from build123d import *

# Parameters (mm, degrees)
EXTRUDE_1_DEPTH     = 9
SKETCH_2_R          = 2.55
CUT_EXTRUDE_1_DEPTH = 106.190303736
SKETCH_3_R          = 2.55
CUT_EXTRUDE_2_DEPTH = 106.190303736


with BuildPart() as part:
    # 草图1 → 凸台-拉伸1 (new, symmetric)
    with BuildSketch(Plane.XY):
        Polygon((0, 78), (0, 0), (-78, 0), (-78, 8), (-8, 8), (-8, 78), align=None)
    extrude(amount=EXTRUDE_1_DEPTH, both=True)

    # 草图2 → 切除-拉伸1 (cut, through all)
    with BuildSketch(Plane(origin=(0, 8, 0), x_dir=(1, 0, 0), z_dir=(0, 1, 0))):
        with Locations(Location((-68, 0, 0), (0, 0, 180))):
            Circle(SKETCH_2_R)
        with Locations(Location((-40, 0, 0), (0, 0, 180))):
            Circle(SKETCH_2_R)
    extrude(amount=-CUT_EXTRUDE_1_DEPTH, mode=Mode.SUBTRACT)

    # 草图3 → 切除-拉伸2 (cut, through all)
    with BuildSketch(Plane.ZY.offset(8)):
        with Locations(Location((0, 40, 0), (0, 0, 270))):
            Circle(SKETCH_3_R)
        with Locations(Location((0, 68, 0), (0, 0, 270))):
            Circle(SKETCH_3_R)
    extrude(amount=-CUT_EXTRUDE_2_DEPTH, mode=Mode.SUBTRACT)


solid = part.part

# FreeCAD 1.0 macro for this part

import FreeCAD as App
import Part
import Sketcher
from FreeCAD import Vector
Q = App.Units.Quantity


def add_polygon(sketch, points):
    """Adds a closed chain of lines whose ends are joined by coincident constraints."""
    first, n = sketch.GeometryCount, len(points)
    for a, b in zip(points, points[1:] + points[:1]):
        sketch.addGeometry(Part.LineSegment(App.Vector(*a, 0), App.Vector(*b, 0)), False)
    for i in range(n):
        sketch.addConstraint(Sketcher.Constraint("Coincident", first + i, 2, first + (i + 1) % n, 1))

doc = App.newDocument("Part")
params = doc.addObject("Spreadsheet::Sheet", "Params")
for row, (alias, value) in enumerate([
    ("sketch1_width", "8 mm"),
    ("sketch1_width2", "70 mm"),
    ("pad1_length", "18 mm"),
    ("sketch2_diameter", "5.1 mm"),
    ("sketch3_diameter", "5.1 mm"),
], start=1):
    params.set(f"A{row}", alias)
    params.set(f"B{row}", "=" + value)
    params.setAlias(f"B{row}", alias)

body = doc.addObject("PartDesign::Body", "Body")

# Sketch on XY plane
sketch1 = body.newObject("Sketcher::SketchObject", "Sketch")
sketch1.AttachmentSupport = (doc.getObject("XY_Plane"), [""])
sketch1.MapMode = "FlatFace"
add_polygon(sketch1, [(0, 0), (0, 78), (-8, 78), (-8, 8), (-78, 8), (-78, 0)])  # lines 0-5
sketch1.addConstraint(Sketcher.Constraint("Vertical", 0))
sketch1.addConstraint(Sketcher.Constraint("Horizontal", 1))
sketch1.addConstraint(Sketcher.Constraint("Vertical", 2))
sketch1.addConstraint(Sketcher.Constraint("Horizontal", 3))
sketch1.addConstraint(Sketcher.Constraint("Vertical", 4))
sketch1.addConstraint(Sketcher.Constraint("Horizontal", 5))
sketch1.addConstraint(Sketcher.Constraint("Coincident", 5, 2, -1, 1))
sketch1.addConstraint(Sketcher.Constraint("Equal", 5, 0))
sketch1.addConstraint(Sketcher.Constraint("Equal", 3, 2))
sketch1.addConstraint(Sketcher.Constraint("DistanceX", 1, 2, 1, 1, Q("8 mm")))
sketch1.addConstraint(Sketcher.Constraint("DistanceX", 3, 2, 3, 1, Q("70 mm")))
sketch1.setExpression("Constraints[15]", "Params.sketch1_width")
sketch1.setExpression("Constraints[16]", "Params.sketch1_width2")
pad1 = body.newObject("PartDesign::Pad", "Pad")
pad1.Profile = sketch1
pad1.setExpression("Length", "Params.pad1_length")
pad1.Midplane = True

# Sketch on XZ plane
sketch2 = body.newObject("Sketcher::SketchObject", "Sketch001")
sketch2.AttachmentSupport = (doc.getObject("XZ_Plane"), [""])
sketch2.MapMode = "FlatFace"
sketch2.AttachmentOffset = App.Placement(Vector(0, 0, -8), App.Rotation())
sketch2.addGeometry(Part.Circle(Vector(-68, 0, 0), Vector(0, 0, 1), 2.5), False)
sketch2.addGeometry(Part.Circle(Vector(-40, 0, 0), Vector(0, 0, 1), 2.5), False)
sketch2.addConstraint(Sketcher.Constraint("Equal", 0, 1))
sketch2.addConstraint(Sketcher.Constraint("PointOnObject", 0, 3, -1))
sketch2.addConstraint(Sketcher.Constraint("PointOnObject", 1, 3, -1))
sketch2.addConstraint(Sketcher.Constraint("Diameter", 0, Q("5.1 mm")))
sketch2.addConstraint(Sketcher.Constraint("DistanceX", 0, 3, -1, 1, Q("68 mm")))
sketch2.addConstraint(Sketcher.Constraint("DistanceX", 1, 3, -1, 1, Q("40 mm")))
sketch2.setExpression("Constraints[3]", "Params.sketch2_diameter")
pocket1 = body.newObject("PartDesign::Pocket", "Pocket")
pocket1.Profile = sketch2
pocket1.Type = "ThroughAll"
pocket1.Reversed = True

# Sketch on YZ plane
sketch3 = body.newObject("Sketcher::SketchObject", "Sketch002")
sketch3.AttachmentSupport = (doc.getObject("YZ_Plane"), [""])
sketch3.MapMode = "FlatFace"
sketch3.AttachmentOffset = App.Placement(Vector(0, 0, -8), App.Rotation())
sketch3.addGeometry(Part.Circle(Vector(40, 0, 0), Vector(0, 0, 1), 2.5), False)
sketch3.addGeometry(Part.Circle(Vector(68, 0, 0), Vector(0, 0, 1), 2.5), False)
sketch3.addConstraint(Sketcher.Constraint("Equal", 0, 1))
sketch3.addConstraint(Sketcher.Constraint("PointOnObject", 0, 3, -1))
sketch3.addConstraint(Sketcher.Constraint("PointOnObject", 1, 3, -1))
sketch3.addConstraint(Sketcher.Constraint("Diameter", 0, Q("5.1 mm")))
sketch3.addConstraint(Sketcher.Constraint("DistanceX", -1, 1, 0, 3, Q("40 mm")))
sketch3.addConstraint(Sketcher.Constraint("DistanceX", -1, 1, 1, 3, Q("68 mm")))
sketch3.setExpression("Constraints[3]", "Params.sketch3_diameter")
pocket2 = body.newObject("PartDesign::Pocket", "Pocket001")
pocket2.Profile = sketch3
pocket2.Type = "ThroughAll"
pocket2.Reversed = True

doc.recompute()
